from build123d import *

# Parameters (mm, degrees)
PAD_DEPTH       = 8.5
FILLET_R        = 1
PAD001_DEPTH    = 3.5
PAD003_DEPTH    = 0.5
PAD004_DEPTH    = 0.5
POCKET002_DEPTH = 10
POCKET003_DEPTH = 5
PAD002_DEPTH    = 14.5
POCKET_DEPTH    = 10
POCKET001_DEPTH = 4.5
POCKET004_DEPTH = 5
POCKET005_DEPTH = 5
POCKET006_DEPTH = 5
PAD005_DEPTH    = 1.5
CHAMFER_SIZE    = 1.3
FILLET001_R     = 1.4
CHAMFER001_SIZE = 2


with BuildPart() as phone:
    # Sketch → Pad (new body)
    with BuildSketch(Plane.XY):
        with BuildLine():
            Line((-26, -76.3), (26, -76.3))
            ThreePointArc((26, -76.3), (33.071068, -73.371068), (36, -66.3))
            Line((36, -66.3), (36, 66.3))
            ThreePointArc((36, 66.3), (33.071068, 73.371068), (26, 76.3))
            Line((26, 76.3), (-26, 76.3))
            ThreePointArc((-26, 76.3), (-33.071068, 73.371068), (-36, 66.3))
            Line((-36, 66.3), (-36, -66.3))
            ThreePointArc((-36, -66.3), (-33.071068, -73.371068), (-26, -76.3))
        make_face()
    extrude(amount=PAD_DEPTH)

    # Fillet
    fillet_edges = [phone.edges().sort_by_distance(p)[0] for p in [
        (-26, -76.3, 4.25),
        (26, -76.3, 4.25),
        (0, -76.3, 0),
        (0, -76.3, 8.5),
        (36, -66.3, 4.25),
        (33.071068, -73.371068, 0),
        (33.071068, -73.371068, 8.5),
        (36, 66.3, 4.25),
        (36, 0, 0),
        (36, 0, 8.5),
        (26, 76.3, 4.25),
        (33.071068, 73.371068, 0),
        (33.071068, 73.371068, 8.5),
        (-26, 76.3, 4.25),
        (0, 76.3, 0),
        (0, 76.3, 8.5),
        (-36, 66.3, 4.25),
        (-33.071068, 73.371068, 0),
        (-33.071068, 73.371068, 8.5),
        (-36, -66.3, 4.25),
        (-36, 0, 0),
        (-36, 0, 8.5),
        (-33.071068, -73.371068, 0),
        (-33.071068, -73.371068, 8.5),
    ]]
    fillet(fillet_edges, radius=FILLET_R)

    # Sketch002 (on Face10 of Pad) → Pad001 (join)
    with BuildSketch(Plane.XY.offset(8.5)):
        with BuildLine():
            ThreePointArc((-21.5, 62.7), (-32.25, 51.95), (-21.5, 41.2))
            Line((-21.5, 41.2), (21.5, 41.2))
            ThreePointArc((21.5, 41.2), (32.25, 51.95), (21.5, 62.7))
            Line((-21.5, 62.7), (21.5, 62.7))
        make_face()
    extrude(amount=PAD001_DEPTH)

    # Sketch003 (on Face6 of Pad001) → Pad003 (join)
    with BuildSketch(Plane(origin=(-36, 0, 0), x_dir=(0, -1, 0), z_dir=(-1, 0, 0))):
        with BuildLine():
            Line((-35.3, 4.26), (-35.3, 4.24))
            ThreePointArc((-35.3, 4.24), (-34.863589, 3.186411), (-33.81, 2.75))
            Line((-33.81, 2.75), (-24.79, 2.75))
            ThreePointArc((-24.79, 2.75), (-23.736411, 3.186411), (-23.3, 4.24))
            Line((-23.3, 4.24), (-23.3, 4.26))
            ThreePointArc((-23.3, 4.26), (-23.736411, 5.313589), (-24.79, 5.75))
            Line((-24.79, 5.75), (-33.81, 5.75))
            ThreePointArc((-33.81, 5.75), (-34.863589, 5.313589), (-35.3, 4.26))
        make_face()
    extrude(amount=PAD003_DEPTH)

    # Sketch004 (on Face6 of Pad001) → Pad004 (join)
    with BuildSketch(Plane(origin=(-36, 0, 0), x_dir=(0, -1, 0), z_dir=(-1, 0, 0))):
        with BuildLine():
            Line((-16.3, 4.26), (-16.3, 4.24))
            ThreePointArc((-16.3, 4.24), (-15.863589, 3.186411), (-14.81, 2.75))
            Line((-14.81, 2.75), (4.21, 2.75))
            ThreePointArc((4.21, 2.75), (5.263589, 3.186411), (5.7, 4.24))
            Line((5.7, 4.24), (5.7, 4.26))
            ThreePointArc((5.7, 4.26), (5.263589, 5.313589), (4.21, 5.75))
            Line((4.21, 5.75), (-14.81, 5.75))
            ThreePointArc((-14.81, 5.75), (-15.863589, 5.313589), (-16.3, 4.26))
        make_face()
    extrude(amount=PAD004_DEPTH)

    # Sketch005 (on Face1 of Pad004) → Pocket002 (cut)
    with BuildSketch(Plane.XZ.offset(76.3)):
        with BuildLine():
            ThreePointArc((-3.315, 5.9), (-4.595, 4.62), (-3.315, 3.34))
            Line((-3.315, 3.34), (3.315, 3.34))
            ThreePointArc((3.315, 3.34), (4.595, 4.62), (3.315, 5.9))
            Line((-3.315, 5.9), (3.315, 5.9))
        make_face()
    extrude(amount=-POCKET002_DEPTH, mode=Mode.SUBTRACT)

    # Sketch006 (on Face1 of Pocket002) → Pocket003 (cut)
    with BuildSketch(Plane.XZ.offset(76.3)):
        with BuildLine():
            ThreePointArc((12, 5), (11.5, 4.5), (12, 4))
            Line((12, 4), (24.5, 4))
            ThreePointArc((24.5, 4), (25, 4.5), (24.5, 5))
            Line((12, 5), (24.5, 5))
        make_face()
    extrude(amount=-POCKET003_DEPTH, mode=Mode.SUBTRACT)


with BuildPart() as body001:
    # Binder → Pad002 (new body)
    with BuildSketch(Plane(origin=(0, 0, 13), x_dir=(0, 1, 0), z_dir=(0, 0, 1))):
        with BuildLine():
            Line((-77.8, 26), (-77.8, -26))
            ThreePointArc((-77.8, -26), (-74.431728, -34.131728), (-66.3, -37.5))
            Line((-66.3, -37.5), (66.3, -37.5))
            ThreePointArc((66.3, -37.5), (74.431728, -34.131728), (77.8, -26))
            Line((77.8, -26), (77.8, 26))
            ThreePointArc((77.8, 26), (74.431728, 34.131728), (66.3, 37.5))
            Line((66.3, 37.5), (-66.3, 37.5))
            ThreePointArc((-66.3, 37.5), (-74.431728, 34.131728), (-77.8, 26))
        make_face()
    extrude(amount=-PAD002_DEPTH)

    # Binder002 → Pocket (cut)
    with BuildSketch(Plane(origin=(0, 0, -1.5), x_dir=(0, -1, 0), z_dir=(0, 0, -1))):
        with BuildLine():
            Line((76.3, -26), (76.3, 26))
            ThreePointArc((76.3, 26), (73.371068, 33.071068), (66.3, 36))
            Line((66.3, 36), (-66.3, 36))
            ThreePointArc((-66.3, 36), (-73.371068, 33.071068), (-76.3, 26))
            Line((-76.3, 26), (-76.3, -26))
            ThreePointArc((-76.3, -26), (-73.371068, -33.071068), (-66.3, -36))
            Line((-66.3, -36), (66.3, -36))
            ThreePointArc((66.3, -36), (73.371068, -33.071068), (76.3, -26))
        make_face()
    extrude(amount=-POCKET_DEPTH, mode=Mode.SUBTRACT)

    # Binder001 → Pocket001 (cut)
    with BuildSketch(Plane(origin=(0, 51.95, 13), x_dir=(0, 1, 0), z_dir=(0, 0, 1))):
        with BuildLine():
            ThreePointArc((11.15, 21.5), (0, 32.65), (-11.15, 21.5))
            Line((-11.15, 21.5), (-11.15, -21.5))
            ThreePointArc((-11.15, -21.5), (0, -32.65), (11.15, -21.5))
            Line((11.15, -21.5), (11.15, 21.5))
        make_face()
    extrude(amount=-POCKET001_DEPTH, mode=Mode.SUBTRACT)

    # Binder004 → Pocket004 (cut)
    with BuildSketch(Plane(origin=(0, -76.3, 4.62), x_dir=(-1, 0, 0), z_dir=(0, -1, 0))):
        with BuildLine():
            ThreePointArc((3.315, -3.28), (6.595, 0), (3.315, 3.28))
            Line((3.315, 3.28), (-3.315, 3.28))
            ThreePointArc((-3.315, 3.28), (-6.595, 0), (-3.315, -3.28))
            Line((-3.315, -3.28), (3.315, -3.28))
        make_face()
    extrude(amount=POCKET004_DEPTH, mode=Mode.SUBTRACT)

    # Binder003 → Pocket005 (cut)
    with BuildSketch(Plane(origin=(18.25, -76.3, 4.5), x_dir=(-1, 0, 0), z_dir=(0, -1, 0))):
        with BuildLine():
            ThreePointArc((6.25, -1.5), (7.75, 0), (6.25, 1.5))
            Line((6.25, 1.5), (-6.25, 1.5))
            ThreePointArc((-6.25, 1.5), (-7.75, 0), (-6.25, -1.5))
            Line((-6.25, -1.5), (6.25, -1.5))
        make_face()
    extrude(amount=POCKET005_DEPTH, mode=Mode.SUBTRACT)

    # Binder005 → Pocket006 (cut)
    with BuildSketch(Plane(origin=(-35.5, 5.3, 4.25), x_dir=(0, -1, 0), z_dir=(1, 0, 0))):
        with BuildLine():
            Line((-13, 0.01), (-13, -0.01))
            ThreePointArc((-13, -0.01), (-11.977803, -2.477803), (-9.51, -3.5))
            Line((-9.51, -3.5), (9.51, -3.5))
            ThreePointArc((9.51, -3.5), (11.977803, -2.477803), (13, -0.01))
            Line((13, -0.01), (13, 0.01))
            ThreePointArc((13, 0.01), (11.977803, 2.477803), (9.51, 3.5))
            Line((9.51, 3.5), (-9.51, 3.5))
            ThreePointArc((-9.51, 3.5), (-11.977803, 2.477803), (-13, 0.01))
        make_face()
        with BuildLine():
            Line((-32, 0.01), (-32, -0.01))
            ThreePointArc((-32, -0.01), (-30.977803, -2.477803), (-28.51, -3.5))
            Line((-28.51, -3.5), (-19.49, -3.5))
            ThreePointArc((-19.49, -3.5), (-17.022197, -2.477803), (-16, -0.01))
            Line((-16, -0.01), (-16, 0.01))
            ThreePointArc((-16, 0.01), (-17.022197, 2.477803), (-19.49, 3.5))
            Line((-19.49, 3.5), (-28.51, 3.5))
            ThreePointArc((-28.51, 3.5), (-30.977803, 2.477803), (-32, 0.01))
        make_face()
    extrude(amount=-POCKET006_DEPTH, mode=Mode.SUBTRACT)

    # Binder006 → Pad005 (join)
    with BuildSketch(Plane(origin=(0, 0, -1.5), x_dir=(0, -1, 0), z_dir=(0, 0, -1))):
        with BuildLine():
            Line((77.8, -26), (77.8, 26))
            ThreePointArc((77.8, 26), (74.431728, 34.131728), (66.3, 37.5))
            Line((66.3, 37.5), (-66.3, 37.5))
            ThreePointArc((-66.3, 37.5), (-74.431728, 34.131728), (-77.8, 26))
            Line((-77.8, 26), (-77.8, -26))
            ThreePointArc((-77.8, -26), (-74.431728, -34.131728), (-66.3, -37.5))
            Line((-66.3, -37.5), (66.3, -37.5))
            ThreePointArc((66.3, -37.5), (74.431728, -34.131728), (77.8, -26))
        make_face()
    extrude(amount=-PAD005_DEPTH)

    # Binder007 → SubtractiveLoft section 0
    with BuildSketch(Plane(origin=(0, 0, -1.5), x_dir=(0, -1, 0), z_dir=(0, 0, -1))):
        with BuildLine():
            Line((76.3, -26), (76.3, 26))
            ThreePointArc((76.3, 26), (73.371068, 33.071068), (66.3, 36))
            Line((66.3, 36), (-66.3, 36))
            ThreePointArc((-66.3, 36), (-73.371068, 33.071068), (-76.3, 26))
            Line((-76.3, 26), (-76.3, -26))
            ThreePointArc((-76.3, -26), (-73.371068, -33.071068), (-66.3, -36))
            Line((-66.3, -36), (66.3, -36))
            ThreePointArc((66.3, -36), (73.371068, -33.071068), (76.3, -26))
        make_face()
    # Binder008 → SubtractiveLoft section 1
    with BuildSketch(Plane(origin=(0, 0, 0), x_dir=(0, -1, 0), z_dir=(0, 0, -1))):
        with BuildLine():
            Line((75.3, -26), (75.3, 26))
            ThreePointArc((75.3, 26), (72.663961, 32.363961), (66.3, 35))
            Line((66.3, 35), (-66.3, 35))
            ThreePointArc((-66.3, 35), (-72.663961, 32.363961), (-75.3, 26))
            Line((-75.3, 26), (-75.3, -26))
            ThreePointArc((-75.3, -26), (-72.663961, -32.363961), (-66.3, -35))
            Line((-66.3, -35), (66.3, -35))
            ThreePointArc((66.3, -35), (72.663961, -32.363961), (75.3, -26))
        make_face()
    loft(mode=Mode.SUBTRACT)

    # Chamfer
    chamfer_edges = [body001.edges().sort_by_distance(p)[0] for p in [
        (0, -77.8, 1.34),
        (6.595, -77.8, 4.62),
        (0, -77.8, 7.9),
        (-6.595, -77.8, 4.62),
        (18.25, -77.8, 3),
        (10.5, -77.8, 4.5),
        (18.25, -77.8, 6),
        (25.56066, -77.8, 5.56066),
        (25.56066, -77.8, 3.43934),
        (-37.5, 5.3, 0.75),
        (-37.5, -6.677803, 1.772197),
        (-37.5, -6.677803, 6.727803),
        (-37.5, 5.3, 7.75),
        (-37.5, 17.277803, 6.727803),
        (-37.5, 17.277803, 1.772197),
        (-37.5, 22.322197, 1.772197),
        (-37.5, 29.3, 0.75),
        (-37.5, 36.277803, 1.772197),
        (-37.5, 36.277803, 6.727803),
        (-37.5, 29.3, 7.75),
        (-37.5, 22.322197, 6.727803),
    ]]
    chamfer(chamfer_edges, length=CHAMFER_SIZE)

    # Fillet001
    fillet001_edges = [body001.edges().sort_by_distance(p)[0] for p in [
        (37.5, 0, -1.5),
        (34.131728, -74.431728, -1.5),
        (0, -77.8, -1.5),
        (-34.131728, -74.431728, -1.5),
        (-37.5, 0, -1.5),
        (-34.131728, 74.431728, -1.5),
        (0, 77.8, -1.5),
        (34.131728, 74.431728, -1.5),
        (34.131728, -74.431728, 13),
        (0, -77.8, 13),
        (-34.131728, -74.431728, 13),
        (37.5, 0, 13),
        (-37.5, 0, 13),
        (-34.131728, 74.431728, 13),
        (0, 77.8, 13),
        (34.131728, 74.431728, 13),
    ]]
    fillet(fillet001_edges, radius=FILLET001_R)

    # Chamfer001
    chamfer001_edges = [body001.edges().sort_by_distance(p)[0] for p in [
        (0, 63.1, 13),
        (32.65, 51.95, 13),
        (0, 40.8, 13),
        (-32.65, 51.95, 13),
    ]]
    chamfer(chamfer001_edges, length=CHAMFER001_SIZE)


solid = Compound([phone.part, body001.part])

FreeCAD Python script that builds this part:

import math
import FreeCAD as App
import Part
import Sketcher


def edges_at(feature, points):
    """Names of the edges that pass closest to the given points."""
    edges = feature.Shape.Edges
    near = lambda p: min(range(len(edges)), key=lambda i: edges[i].distToShape(Part.Vertex(*p))[0])
    return sorted({f"Edge{near(p) + 1}" for p in points})

doc = App.newDocument("Part")
params = doc.addObject("Spreadsheet::Sheet", "Params")
for row, (alias, value) in enumerate([
    ("sketch1_radius", "9.999999 mm"),
    ("sketch1_width", "52 mm"),
    ("sketch1_height", "132.6 mm"),
    ("pad1_length", "8.5 mm"),
    ("fillet_radius", "1 mm"),
    ("sketch2_width", "43 mm"),
    ("sketch2_radius", "10.75 mm"),
    ("pad2_length", "3.5 mm"),
    ("sketch3_radius", "1.49 mm"),
    ("sketch3_width", "9.02 mm"),
    ("pad3_length", "0.5 mm"),
    ("sketch4_radius", "1.49 mm"),
    ("sketch4_width", "19.02 mm"),
    ("pad4_length", "0.5 mm"),
    ("sketch5_radius", "1.28 mm"),
    ("sketch5_width", "6.63 mm"),
    ("pocket1_length", "10 mm"),
    ("sketch6_radius", "0.5 mm"),
    ("sketch6_width", "12.5 mm"),
    ("pocket2_length", "5 mm"),
    ("sketch7_radius", "11.5 mm"),
    ("sketch7_width", "52 mm"),
    ("sketch7_height", "132.6 mm"),
    ("pad5_length", "14.5 mm"),
    ("sketch8_radius", "9.999999 mm"),
    ("sketch8_width", "52 mm"),
    ("sketch8_height", "132.6 mm"),
    ("pocket3_length", "10 mm"),
    ("sketch9_width", "43 mm"),
    ("sketch9_radius", "11.15 mm"),
    ("pocket4_length", "4.5 mm"),
    ("sketch10_radius", "3.28 mm"),
    ("sketch10_width", "6.63 mm"),
    ("pocket5_length", "5 mm"),
    ("sketch11_radius", "1.5 mm"),
    ("sketch11_width", "12.5 mm"),
    ("pocket6_length", "5 mm"),
    ("sketch12_radius", "3.489999 mm"),
    ("pocket7_length", "5 mm"),
    ("sketch13_radius", "11.5 mm"),
    ("sketch13_width", "52 mm"),
    ("sketch13_height", "132.6 mm"),
    ("pad6_length", "1.5 mm"),
    ("sketch14_radius", "9.999999 mm"),
    ("sketch14_width", "52 mm"),
    ("sketch14_height", "132.6 mm"),
    ("sketch15_radius", "9 mm"),
    ("sketch15_width", "52 mm"),
    ("sketch15_height", "132.6 mm"),
    ("chamfer_size", "1.3 mm"),
    ("fillet2_radius", "1.4 mm"),
    ("chamfer2_size", "2 mm"),
], start=1):
    params.set(f"A{row}", alias)
    params.set(f"B{row}", "=" + value)
    params.setAlias(f"B{row}", alias)

body = doc.addObject("PartDesign::Body", "Body")

# Sketch on XY plane
sketch1 = body.newObject("Sketcher::SketchObject", "Sketch")
sketch1.AttachmentSupport = (doc.getObject("XY_Plane"), [""])
sketch1.MapMode = "FlatFace"
sketch1.addGeometry(Part.LineSegment(App.Vector(-26, -76, 0), App.Vector(26, -76, 0)), False)
sketch1.addGeometry(Part.ArcOfCircle(Part.Circle(App.Vector(26, -66, 0), App.Vector(0, 0, 1), 10), math.radians(-90), math.radians(0)), False)
sketch1.addGeometry(Part.LineSegment(App.Vector(36, -66, 0), App.Vector(36, 66, 0)), False)
sketch1.addGeometry(Part.ArcOfCircle(Part.Circle(App.Vector(26, 66, 0), App.Vector(0, 0, 1), 10), math.radians(0), math.radians(90)), False)
sketch1.addGeometry(Part.LineSegment(App.Vector(26, 76, 0), App.Vector(-26, 76, 0)), False)
sketch1.addGeometry(Part.ArcOfCircle(Part.Circle(App.Vector(-26, 66, 0), App.Vector(0, 0, 1), 10), math.radians(90), math.radians(180)), False)
sketch1.addGeometry(Part.LineSegment(App.Vector(-36, 66, 0), App.Vector(-36, -66, 0)), False)
sketch1.addGeometry(Part.ArcOfCircle(Part.Circle(App.Vector(-26, -66, 0), App.Vector(0, 0, 1), 10), math.radians(180), math.radians(270)), False)
sketch1.addConstraint(Sketcher.Constraint("Tangent", 0, 2, 1, 1))
sketch1.addConstraint(Sketcher.Constraint("Tangent", 1, 2, 2, 1))
sketch1.addConstraint(Sketcher.Constraint("Tangent", 2, 2, 3, 1))
sketch1.addConstraint(Sketcher.Constraint("Tangent", 3, 2, 4, 1))
sketch1.addConstraint(Sketcher.Constraint("Tangent", 4, 2, 5, 1))
sketch1.addConstraint(Sketcher.Constraint("Tangent", 5, 2, 6, 1))
sketch1.addConstraint(Sketcher.Constraint("Tangent", 6, 2, 7, 1))
sketch1.addConstraint(Sketcher.Constraint("Tangent", 7, 2, 0, 1))
sketch1.addConstraint(Sketcher.Constraint("Horizontal", 0))
sketch1.addConstraint(Sketcher.Constraint("Vertical", 2))
sketch1.addConstraint(Sketcher.Constraint("Horizontal", 4))
sketch1.addConstraint(Sketcher.Constraint("Vertical", 6))
sketch1.addConstraint(Sketcher.Constraint("Equal", 1, 3))
sketch1.addConstraint(Sketcher.Constraint("Equal", 3, 5))
sketch1.addConstraint(Sketcher.Constraint("Equal", 5, 7))
sketch1.addConstraint(Sketcher.Constraint("Symmetric", 1, 3, 5, 3, -1, 1))
sketch1.addConstraint(Sketcher.Constraint("Radius", 1, 9.999999))
sketch1.addConstraint(Sketcher.Constraint("DistanceX", 0, 1, 0, 2, 52.0))
sketch1.addConstraint(Sketcher.Constraint("DistanceY", 2, 1, 2, 2, 132.6))
sketch1.setExpression("Constraints[16]", "Params.sketch1_radius")
sketch1.setExpression("Constraints[17]", "Params.sketch1_width")
sketch1.setExpression("Constraints[18]", "Params.sketch1_height")
pad1 = body.newObject("PartDesign::Pad", "Pad")
pad1.Profile = sketch1
pad1.setExpression("Length", "Params.pad1_length")
doc.recompute()

fillet = body.newObject("PartDesign::Fillet", "Fillet")
fillet.Base = (pad1, ["Edge1"])
fillet.UseAllEdges = True
fillet.setExpression("Radius", "Params.fillet_radius")

# Sketch on XY plane
sketch2 = body.newObject("Sketcher::SketchObject", "Sketch001")
sketch2.AttachmentSupport = (doc.getObject("XY_Plane"), [""])
sketch2.MapMode = "FlatFace"
sketch2.AttachmentOffset = App.Placement(App.Vector(0, 0, 8.5), App.Rotation())
sketch2.addGeometry(Part.ArcOfCircle(Part.Circle(App.Vector(-22, 52, 0), App.Vector(0, 0, 1), 11), math.radians(90), math.radians(270)), False)
sketch2.addGeometry(Part.LineSegment(App.Vector(-22, 41, 0), App.Vector(22, 41, 0)), False)
sketch2.addGeometry(Part.ArcOfCircle(Part.Circle(App.Vector(22, 52, 0), App.Vector(0, 0, 1), 11), math.radians(-90), math.radians(90)), False)
sketch2.addGeometry(Part.LineSegment(App.Vector(22, 63, 0), App.Vector(-22, 63, 0)), False)
sketch2.addConstraint(Sketcher.Constraint("Tangent", 0, 2, 1, 1))
sketch2.addConstraint(Sketcher.Constraint("Tangent", 1, 2, 2, 1))
sketch2.addConstraint(Sketcher.Constraint("Tangent", 2, 2, 3, 1))
sketch2.addConstraint(Sketcher.Constraint("Tangent", 3, 2, 0, 1))
sketch2.addConstraint(Sketcher.Constraint("Horizontal", 1))
sketch2.addConstraint(Sketcher.Constraint("Horizontal", 3))
sketch2.addConstraint(Sketcher.Constraint("DistanceX", 1, 1, 1, 2, 43.0))
sketch2.addConstraint(Sketcher.Constraint("Radius", 0, 10.75))
sketch2.addConstraint(Sketcher.Constraint("DistanceX", 0, 3, -1, 1, 21.5))
sketch2.addConstraint(Sketcher.Constraint("DistanceY", -1, 1, 0, 2, 41.2))
sketch2.setExpression("Constraints[6]", "Params.sketch2_width")
sketch2.setExpression("Constraints[7]", "Params.sketch2_radius")
pad2 = body.newObject("PartDesign::Pad", "Pad001")
pad2.Profile = sketch2
pad2.setExpression("Length", "Params.pad2_length")

# Sketch on YZ plane
sketch3 = body.newObject("Sketcher::SketchObject", "Sketch002")
sketch3.AttachmentSupport = (doc.getObject("YZ_Plane"), [""])
sketch3.MapMode = "FlatFace"
sketch3.AttachmentOffset = App.Placement(App.Vector(0, 0, -36), App.Rotation())
sketch3.addGeometry(Part.LineSegment(App.Vector(35.3, 4.26, 0), App.Vector(35.3, 4.24, 0)), False)
sketch3.addGeometry(Part.ArcOfCircle(Part.Circle(App.Vector(33.81, 4.24, 0), App.Vector(0, 0, 1), 1.49), math.radians(-90), math.radians(0)), False)
sketch3.addGeometry(Part.LineSegment(App.Vector(33.81, 2.75, 0), App.Vector(24.79, 2.75, 0)), False)
sketch3.addGeometry(Part.ArcOfCircle(Part.Circle(App.Vector(24.79, 4.24, 0), App.Vector(0, 0, 1), 1.49), math.radians(-180), math.radians(-90)), False)
sketch3.addGeometry(Part.LineSegment(App.Vector(23.3, 4.24, 0), App.Vector(23.3, 4.26, 0)), False)
sketch3.addGeometry(Part.ArcOfCircle(Part.Circle(App.Vector(24.79, 4.26, 0), App.Vector(0, 0, 1), 1.49), math.radians(90), math.radians(180)), False)
sketch3.addGeometry(Part.LineSegment(App.Vector(24.79, 5.75, 0), App.Vector(33.81, 5.75, 0)), False)
sketch3.addGeometry(Part.ArcOfCircle(Part.Circle(App.Vector(33.81, 4.26, 0), App.Vector(0, 0, 1), 1.49), math.radians(0), math.radians(90)), False)
sketch3.addConstraint(Sketcher.Constraint("Tangent", 0, 2, 1, 2))
sketch3.addConstraint(Sketcher.Constraint("Tangent", 1, 1, 2, 1))
sketch3.addConstraint(Sketcher.Constraint("Tangent", 2, 2, 3, 2))
sketch3.addConstraint(Sketcher.Constraint("Tangent", 3, 1, 4, 1))
sketch3.addConstraint(Sketcher.Constraint("Tangent", 4, 2, 5, 2))
sketch3.addConstraint(Sketcher.Constraint("Tangent", 5, 1, 6, 1))
sketch3.addConstraint(Sketcher.Constraint("Tangent", 6, 2, 7, 2))
sketch3.addConstraint(Sketcher.Constraint("Tangent", 7, 1, 0, 1))
sketch3.addConstraint(Sketcher.Constraint("Vertical", 0))
sketch3.addConstraint(Sketcher.Constraint("Horizontal", 2))
sketch3.addConstraint(Sketcher.Constraint("Vertical", 4))
sketch3.addConstraint(Sketcher.Constraint("Horizontal", 6))
sketch3.addConstraint(Sketcher.Constraint("Equal", 1, 3))
sketch3.addConstraint(Sketcher.Constraint("Equal", 3, 5))
sketch3.addConstraint(Sketcher.Constraint("Equal", 5, 7))
sketch3.addConstraint(Sketcher.Constraint("Radius", 1, 1.49))
sketch3.addConstraint(Sketcher.Constraint("DistanceY", 2, 2, 5, 1, 3.0))
sketch3.addConstraint(Sketcher.Constraint("DistanceX", 2, 2, 2, 1, 9.02))
sketch3.addConstraint(Sketcher.Constraint("DistanceX", -1, 1, 0, 2, 35.3))
sketch3.addConstraint(Sketcher.Constraint("DistanceY", -1, 1, 1, 3, 4.24))
sketch3.setExpression("Constraints[15]", "Params.sketch3_radius")
sketch3.setExpression("Constraints[17]", "Params.sketch3_width")
pad3 = body.newObject("PartDesign::Pad", "Pad002")
pad3.Profile = sketch3
pad3.setExpression("Length", "Params.pad3_length")
pad3.Reversed = True

# Sketch on YZ plane
sketch4 = body.newObject("Sketcher::SketchObject", "Sketch003")
sketch4.AttachmentSupport = (doc.getObject("YZ_Plane"), [""])
sketch4.MapMode = "FlatFace"
sketch4.AttachmentOffset = App.Placement(App.Vector(0, 0, -36), App.Rotation())
sketch4.addGeometry(Part.LineSegment(App.Vector(16.3, 4.26, 0), App.Vector(16.3, 4.24, 0)), False)
sketch4.addGeometry(Part.ArcOfCircle(Part.Circle(App.Vector(14.81, 4.24, 0), App.Vector(0, 0, 1), 1.49), math.radians(-90), math.radians(0)), False)
sketch4.addGeometry(Part.LineSegment(App.Vector(14.81, 2.75, 0), App.Vector(-4.21, 2.75, 0)), False)
sketch4.addGeometry(Part.ArcOfCircle(Part.Circle(App.Vector(-4.21, 4.24, 0), App.Vector(0, 0, 1), 1.49), math.radians(-180), math.radians(-90)), False)
sketch4.addGeometry(Part.LineSegment(App.Vector(-5.7, 4.24, 0), App.Vector(-5.7, 4.26, 0)), False)
sketch4.addGeometry(Part.ArcOfCircle(Part.Circle(App.Vector(-4.21, 4.26, 0), App.Vector(0, 0, 1), 1.49), math.radians(90), math.radians(180)), False)
sketch4.addGeometry(Part.LineSegment(App.Vector(-4.21, 5.75, 0), App.Vector(14.81, 5.75, 0)), False)
sketch4.addGeometry(Part.ArcOfCircle(Part.Circle(App.Vector(14.81, 4.26, 0), App.Vector(0, 0, 1), 1.49), math.radians(0), math.radians(90)), False)
sketch4.addConstraint(Sketcher.Constraint("Tangent", 0, 2, 1, 2))
sketch4.addConstraint(Sketcher.Constraint("Tangent", 1, 1, 2, 1))
sketch4.addConstraint(Sketcher.Constraint("Tangent", 2, 2, 3, 2))
sketch4.addConstraint(Sketcher.Constraint("Tangent", 3, 1, 4, 1))
sketch4.addConstraint(Sketcher.Constraint("Tangent", 4, 2, 5, 2))
sketch4.addConstraint(Sketcher.Constraint("Tangent", 5, 1, 6, 1))
sketch4.addConstraint(Sketcher.Constraint("Tangent", 6, 2, 7, 2))
sketch4.addConstraint(Sketcher.Constraint("Tangent", 7, 1, 0, 1))
sketch4.addConstraint(Sketcher.Constraint("Vertical", 0))
sketch4.addConstraint(Sketcher.Constraint("Horizontal", 2))
sketch4.addConstraint(Sketcher.Constraint("Vertical", 4))
sketch4.addConstraint(Sketcher.Constraint("Horizontal", 6))
sketch4.addConstraint(Sketcher.Constraint("Equal", 1, 3))
sketch4.addConstraint(Sketcher.Constraint("Equal", 3, 5))
sketch4.addConstraint(Sketcher.Constraint("Equal", 5, 7))
sketch4.addConstraint(Sketcher.Constraint("Radius", 1, 1.49))
sketch4.addConstraint(Sketcher.Constraint("DistanceY", 2, 2, 5, 1, 3.0))
sketch4.addConstraint(Sketcher.Constraint("DistanceX", 2, 2, 2, 1, 19.02))
sketch4.addConstraint(Sketcher.Constraint("DistanceX", -1, 1, 0, 2, 16.3))
sketch4.addConstraint(Sketcher.Constraint("DistanceY", -1, 1, 1, 3, 4.24))
sketch4.setExpression("Constraints[15]", "Params.sketch4_radius")
sketch4.setExpression("Constraints[17]", "Params.sketch4_width")
pad4 = body.newObject("PartDesign::Pad", "Pad003")
pad4.Profile = sketch4
pad4.setExpression("Length", "Params.pad4_length")
pad4.Reversed = True

# Sketch on XZ plane
sketch5 = body.newObject("Sketcher::SketchObject", "Sketch004")
sketch5.AttachmentSupport = (doc.getObject("XZ_Plane"), [""])
sketch5.MapMode = "FlatFace"
sketch5.AttachmentOffset = App.Placement(App.Vector(0, 0, 76.3), App.Rotation())
sketch5.addGeometry(Part.ArcOfCircle(Part.Circle(App.Vector(-3.3, 4.6, 0), App.Vector(0, 0, 1), 1.3), math.radians(90), math.radians(270)), False)
sketch5.addGeometry(Part.LineSegment(App.Vector(-3.3, 3.3, 0), App.Vector(3.3, 3.3, 0)), False)
sketch5.addGeometry(Part.ArcOfCircle(Part.Circle(App.Vector(3.3, 4.6, 0), App.Vector(0, 0, 1), 1.3), math.radians(-90), math.radians(90)), False)
sketch5.addGeometry(Part.LineSegment(App.Vector(3.3, 5.9, 0), App.Vector(-3.3, 5.9, 0)), False)
sketch5.addConstraint(Sketcher.Constraint("Tangent", 0, 2, 1, 1))
sketch5.addConstraint(Sketcher.Constraint("Tangent", 1, 2, 2, 1))
sketch5.addConstraint(Sketcher.Constraint("Tangent", 2, 2, 3, 1))
sketch5.addConstraint(Sketcher.Constraint("Tangent", 3, 2, 0, 1))
sketch5.addConstraint(Sketcher.Constraint("Horizontal", 1))
sketch5.addConstraint(Sketcher.Constraint("Horizontal", 3))
sketch5.addConstraint(Sketcher.Constraint("Radius", 0, 1.28))
sketch5.addConstraint(Sketcher.Constraint("DistanceX", 1, 1, 1, 2, 6.63))
sketch5.addConstraint(Sketcher.Constraint("DistanceY", -1, 1, 2, 2, 5.9))
sketch5.addConstraint(Sketcher.Constraint("DistanceX", 0, 3, -1, 1, 3.315))
sketch5.setExpression("Constraints[6]", "Params.sketch5_radius")
sketch5.setExpression("Constraints[7]", "Params.sketch5_width")
pocket1 = body.newObject("PartDesign::Pocket", "Pocket")
pocket1.Profile = sketch5
pocket1.setExpression("Length", "Params.pocket1_length")

# Sketch on XZ plane
sketch6 = body.newObject("Sketcher::SketchObject", "Sketch005")
sketch6.AttachmentSupport = (doc.getObject("XZ_Plane"), [""])
sketch6.MapMode = "FlatFace"
sketch6.AttachmentOffset = App.Placement(App.Vector(0, 0, 76.3), App.Rotation())
sketch6.addGeometry(Part.ArcOfCircle(Part.Circle(App.Vector(12, 4.5, 0), App.Vector(0, 0, 1), 0.5), math.radians(90), math.radians(270)), False)
sketch6.addGeometry(Part.LineSegment(App.Vector(12, 4, 0), App.Vector(24.5, 4, 0)), False)
sketch6.addGeometry(Part.ArcOfCircle(Part.Circle(App.Vector(24.5, 4.5, 0), App.Vector(0, 0, 1), 0.5), math.radians(-90), math.radians(90)), False)
sketch6.addGeometry(Part.LineSegment(App.Vector(24.5, 5, 0), App.Vector(12, 5, 0)), False)
sketch6.addConstraint(Sketcher.Constraint("Tangent", 0, 2, 1, 1))
sketch6.addConstraint(Sketcher.Constraint("Tangent", 1, 2, 2, 1))
sketch6.addConstraint(Sketcher.Constraint("Tangent", 2, 2, 3, 1))
sketch6.addConstraint(Sketcher.Constraint("Tangent", 3, 2, 0, 1))
sketch6.addConstraint(Sketcher.Constraint("Horizontal", 1))
sketch6.addConstraint(Sketcher.Constraint("Horizontal", 3))
sketch6.addConstraint(Sketcher.Constraint("Radius", 0, 0.5))
sketch6.addConstraint(Sketcher.Constraint("DistanceX", 1, 1, 1, 2, 12.5))
sketch6.addConstraint(Sketcher.Constraint("DistanceX", -1, 1, 0, 3, 12.0))
sketch6.addConstraint(Sketcher.Constraint("DistanceY", -1, 1, 0, 2, 4.0))
sketch6.setExpression("Constraints[6]", "Params.sketch6_radius")
sketch6.setExpression("Constraints[7]", "Params.sketch6_width")
pocket2 = body.newObject("PartDesign::Pocket", "Pocket001")
pocket2.Profile = sketch6
pocket2.setExpression("Length", "Params.pocket2_length")
body2 = doc.addObject("PartDesign::Body", "Body001")

# Sketch on XY plane
sketch7 = body2.newObject("Sketcher::SketchObject", "Sketch006")
sketch7.AttachmentSupport = (doc.getObject("XY_Plane001"), [""])
sketch7.MapMode = "FlatFace"
sketch7.AttachmentOffset = App.Placement(App.Vector(0, 0, 13), App.Rotation())
sketch7.addGeometry(Part.LineSegment(App.Vector(-26, -78, 0), App.Vector(26, -78, 0)), False)
sketch7.addGeometry(Part.ArcOfCircle(Part.Circle(App.Vector(26, -66, 0), App.Vector(0, 0, 1), 11), math.radians(-90), math.radians(0)), False)
sketch7.addGeometry(Part.LineSegment(App.Vector(38, -66, 0), App.Vector(38, 66, 0)), False)
sketch7.addGeometry(Part.ArcOfCircle(Part.Circle(App.Vector(26, 66, 0), App.Vector(0, 0, 1), 11), math.radians(0), math.radians(90)), False)
sketch7.addGeometry(Part.LineSegment(App.Vector(26, 78, 0), App.Vector(-26, 78, 0)), False)
sketch7.addGeometry(Part.ArcOfCircle(Part.Circle(App.Vector(-26, 66, 0), App.Vector(0, 0, 1), 11), math.radians(90), math.radians(180)), False)
sketch7.addGeometry(Part.LineSegment(App.Vector(-38, 66, 0), App.Vector(-38, -66, 0)), False)
sketch7.addGeometry(Part.ArcOfCircle(Part.Circle(App.Vector(-26, -66, 0), App.Vector(0, 0, 1), 11), math.radians(180), math.radians(270)), False)
sketch7.addConstraint(Sketcher.Constraint("Tangent", 0, 2, 1, 1))
sketch7.addConstraint(Sketcher.Constraint("Tangent", 1, 2, 2, 1))
sketch7.addConstraint(Sketcher.Constraint("Tangent", 2, 2, 3, 1))
sketch7.addConstraint(Sketcher.Constraint("Tangent", 3, 2, 4, 1))
sketch7.addConstraint(Sketcher.Constraint("Tangent", 4, 2, 5, 1))
sketch7.addConstraint(Sketcher.Constraint("Tangent", 5, 2, 6, 1))
sketch7.addConstraint(Sketcher.Constraint("Tangent", 6, 2, 7, 1))
sketch7.addConstraint(Sketcher.Constraint("Tangent", 7, 2, 0, 1))
sketch7.addConstraint(Sketcher.Constraint("Horizontal", 0))
sketch7.addConstraint(Sketcher.Constraint("Vertical", 2))
sketch7.addConstraint(Sketcher.Constraint("Horizontal", 4))
sketch7.addConstraint(Sketcher.Constraint("Vertical", 6))
sketch7.addConstraint(Sketcher.Constraint("Equal", 1, 3))
sketch7.addConstraint(Sketcher.Constraint("Equal", 3, 5))
sketch7.addConstraint(Sketcher.Constraint("Equal", 5, 7))
sketch7.addConstraint(Sketcher.Constraint("Symmetric", 1, 3, 5, 3, -1, 1))
sketch7.addConstraint(Sketcher.Constraint("Radius", 1, 11.5))
sketch7.addConstraint(Sketcher.Constraint("DistanceX", 0, 1, 0, 2, 52.0))
sketch7.addConstraint(Sketcher.Constraint("DistanceY", 2, 1, 2, 2, 132.6))
sketch7.setExpression("Constraints[16]", "Params.sketch7_radius")
sketch7.setExpression("Constraints[17]", "Params.sketch7_width")
sketch7.setExpression("Constraints[18]", "Params.sketch7_height")
pad5 = body2.newObject("PartDesign::Pad", "Pad004")
pad5.Profile = sketch7
pad5.setExpression("Length", "Params.pad5_length")
pad5.Reversed = True

# Sketch on XY plane
sketch8 = body2.newObject("Sketcher::SketchObject", "Sketch007")
sketch8.AttachmentSupport = (doc.getObject("XY_Plane001"), [""])
sketch8.MapMode = "FlatFace"
sketch8.AttachmentOffset = App.Placement(App.Vector(0, 0, -1.5), App.Rotation())
sketch8.addGeometry(Part.LineSegment(App.Vector(26, -76, 0), App.Vector(-26, -76, 0)), False)
sketch8.addGeometry(Part.ArcOfCircle(Part.Circle(App.Vector(-26, -66, 0), App.Vector(0, 0, 1), 10), math.radians(180), math.radians(270)), False)
sketch8.addGeometry(Part.LineSegment(App.Vector(-36, -66, 0), App.Vector(-36, 66, 0)), False)
sketch8.addGeometry(Part.ArcOfCircle(Part.Circle(App.Vector(-26, 66, 0), App.Vector(0, 0, 1), 10), math.radians(90), math.radians(180)), False)
sketch8.addGeometry(Part.LineSegment(App.Vector(-26, 76, 0), App.Vector(26, 76, 0)), False)
sketch8.addGeometry(Part.ArcOfCircle(Part.Circle(App.Vector(26, 66, 0), App.Vector(0, 0, 1), 10), math.radians(0), math.radians(90)), False)
sketch8.addGeometry(Part.LineSegment(App.Vector(36, 66, 0), App.Vector(36, -66, 0)), False)
sketch8.addGeometry(Part.ArcOfCircle(Part.Circle(App.Vector(26, -66, 0), App.Vector(0, 0, 1), 10), math.radians(-90), math.radians(0)), False)
sketch8.addConstraint(Sketcher.Constraint("Tangent", 0, 2, 1, 2))
sketch8.addConstraint(Sketcher.Constraint("Tangent", 1, 1, 2, 1))
sketch8.addConstraint(Sketcher.Constraint("Tangent", 2, 2, 3, 2))
sketch8.addConstraint(Sketcher.Constraint("Tangent", 3, 1, 4, 1))
sketch8.addConstraint(Sketcher.Constraint("Tangent", 4, 2, 5, 2))
sketch8.addConstraint(Sketcher.Constraint("Tangent", 5, 1, 6, 1))
sketch8.addConstraint(Sketcher.Constraint("Tangent", 6, 2, 7, 2))
sketch8.addConstraint(Sketcher.Constraint("Tangent", 7, 1, 0, 1))
sketch8.addConstraint(Sketcher.Constraint("Horizontal", 0))
sketch8.addConstraint(Sketcher.Constraint("Vertical", 2))
sketch8.addConstraint(Sketcher.Constraint("Horizontal", 4))
sketch8.addConstraint(Sketcher.Constraint("Vertical", 6))
sketch8.addConstraint(Sketcher.Constraint("Equal", 1, 3))
sketch8.addConstraint(Sketcher.Constraint("Equal", 3, 5))
sketch8.addConstraint(Sketcher.Constraint("Equal", 5, 7))
sketch8.addConstraint(Sketcher.Constraint("Symmetric", 1, 3, 5, 3, -1, 1))
sketch8.addConstraint(Sketcher.Constraint("Radius", 1, 9.999999))
sketch8.addConstraint(Sketcher.Constraint("DistanceX", 0, 2, 0, 1, 52.0))
sketch8.addConstraint(Sketcher.Constraint("DistanceY", 2, 1, 2, 2, 132.6))
sketch8.setExpression("Constraints[16]", "Params.sketch8_radius")
sketch8.setExpression("Constraints[17]", "Params.sketch8_width")
sketch8.setExpression("Constraints[18]", "Params.sketch8_height")
pocket3 = body2.newObject("PartDesign::Pocket", "Pocket002")
pocket3.Profile = sketch8
pocket3.setExpression("Length", "Params.pocket3_length")
pocket3.Reversed = True

# Sketch on XY plane
sketch9 = body2.newObject("Sketcher::SketchObject", "Sketch008")
sketch9.AttachmentSupport = (doc.getObject("XY_Plane001"), [""])
sketch9.MapMode = "FlatFace"
sketch9.AttachmentOffset = App.Placement(App.Vector(0, 0, 13), App.Rotation())
sketch9.addGeometry(Part.ArcOfCircle(Part.Circle(App.Vector(-22, 52, 0), App.Vector(0, 0, 1), 11), math.radians(90), math.radians(270)), False)
sketch9.addGeometry(Part.LineSegment(App.Vector(-22, 41, 0), App.Vector(22, 41, 0)), False)
sketch9.addGeometry(Part.ArcOfCircle(Part.Circle(App.Vector(22, 52, 0), App.Vector(0, 0, 1), 11), math.radians(-90), math.radians(90)), False)
sketch9.addGeometry(Part.LineSegment(App.Vector(22, 63, 0), App.Vector(-22, 63, 0)), False)
sketch9.addConstraint(Sketcher.Constraint("Tangent", 0, 2, 1, 1))
sketch9.addConstraint(Sketcher.Constraint("Tangent", 1, 2, 2, 1))
sketch9.addConstraint(Sketcher.Constraint("Tangent", 2, 2, 3, 1))
sketch9.addConstraint(Sketcher.Constraint("Tangent", 3, 2, 0, 1))
sketch9.addConstraint(Sketcher.Constraint("Horizontal", 1))
sketch9.addConstraint(Sketcher.Constraint("Horizontal", 3))
sketch9.addConstraint(Sketcher.Constraint("DistanceX", 1, 1, 1, 2, 43.0))
sketch9.addConstraint(Sketcher.Constraint("Radius", 0, 11.15))
sketch9.addConstraint(Sketcher.Constraint("DistanceX", 0, 3, -1, 1, 21.5))
sketch9.addConstraint(Sketcher.Constraint("DistanceY", -1, 1, 0, 2, 40.8))
sketch9.setExpression("Constraints[6]", "Params.sketch9_width")
sketch9.setExpression("Constraints[7]", "Params.sketch9_radius")
pocket4 = body2.newObject("PartDesign::Pocket", "Pocket003")
pocket4.Profile = sketch9
pocket4.setExpression("Length", "Params.pocket4_length")

# Sketch on XZ plane
sketch10 = body2.newObject("Sketcher::SketchObject", "Sketch009")
sketch10.AttachmentSupport = (doc.getObject("XZ_Plane001"), [""])
sketch10.MapMode = "FlatFace"
sketch10.AttachmentOffset = App.Placement(App.Vector(0, 0, 76.3), App.Rotation())
sketch10.addGeometry(Part.ArcOfCircle(Part.Circle(App.Vector(-3.3, 4.6, 0), App.Vector(0, 0, 1), 3.3), math.radians(90), math.radians(270)), False)
sketch10.addGeometry(Part.LineSegment(App.Vector(-3.3, 1.3, 0), App.Vector(3.3, 1.3, 0)), False)
sketch10.addGeometry(Part.ArcOfCircle(Part.Circle(App.Vector(3.3, 4.6, 0), App.Vector(0, 0, 1), 3.3), math.radians(-90), math.radians(90)), False)
sketch10.addGeometry(Part.LineSegment(App.Vector(3.3, 7.9, 0), App.Vector(-3.3, 7.9, 0)), False)
sketch10.addConstraint(Sketcher.Constraint("Tangent", 0, 2, 1, 1))
sketch10.addConstraint(Sketcher.Constraint("Tangent", 1, 2, 2, 1))
sketch10.addConstraint(Sketcher.Constraint("Tangent", 2, 2, 3, 1))
sketch10.addConstraint(Sketcher.Constraint("Tangent", 3, 2, 0, 1))
sketch10.addConstraint(Sketcher.Constraint("Horizontal", 1))
sketch10.addConstraint(Sketcher.Constraint("Horizontal", 3))
sketch10.addConstraint(Sketcher.Constraint("Radius", 0, 3.28))
sketch10.addConstraint(Sketcher.Constraint("DistanceX", 1, 1, 1, 2, 6.63))
sketch10.addConstraint(Sketcher.Constraint("DistanceY", -1, 1, 2, 2, 7.9))
sketch10.addConstraint(Sketcher.Constraint("DistanceX", 0, 3, -1, 1, 3.315))
sketch10.setExpression("Constraints[6]", "Params.sketch10_radius")
sketch10.setExpression("Constraints[7]", "Params.sketch10_width")
pocket5 = body2.newObject("PartDesign::Pocket", "Pocket004")
pocket5.Profile = sketch10
pocket5.setExpression("Length", "Params.pocket5_length")
pocket5.Reversed = True

# Sketch on XZ plane
sketch11 = body2.newObject("Sketcher::SketchObject", "Sketch010")
sketch11.AttachmentSupport = (doc.getObject("XZ_Plane001"), [""])
sketch11.MapMode = "FlatFace"
sketch11.AttachmentOffset = App.Placement(App.Vector(0, 0, 76.3), App.Rotation())
sketch11.addGeometry(Part.ArcOfCircle(Part.Circle(App.Vector(12, 4.5, 0), App.Vector(0, 0, 1), 1.5), math.radians(90), math.radians(270)), False)
sketch11.addGeometry(Part.LineSegment(App.Vector(12, 3, 0), App.Vector(24.5, 3, 0)), False)
sketch11.addGeometry(Part.ArcOfCircle(Part.Circle(App.Vector(24.5, 4.5, 0), App.Vector(0, 0, 1), 1.5), math.radians(-90), math.radians(90)), False)
sketch11.addGeometry(Part.LineSegment(App.Vector(24.5, 6, 0), App.Vector(12, 6, 0)), False)
sketch11.addConstraint(Sketcher.Constraint("Tangent", 0, 2, 1, 1))
sketch11.addConstraint(Sketcher.Constraint("Tangent", 1, 2, 2, 1))
sketch11.addConstraint(Sketcher.Constraint("Tangent", 2, 2, 3, 1))
sketch11.addConstraint(Sketcher.Constraint("Tangent", 3, 2, 0, 1))
sketch11.addConstraint(Sketcher.Constraint("Horizontal", 1))
sketch11.addConstraint(Sketcher.Constraint("Horizontal", 3))
sketch11.addConstraint(Sketcher.Constraint("Radius", 0, 1.5))
sketch11.addConstraint(Sketcher.Constraint("DistanceX", 1, 1, 1, 2, 12.5))
sketch11.addConstraint(Sketcher.Constraint("DistanceX", -1, 1, 0, 3, 12.0))
sketch11.addConstraint(Sketcher.Constraint("DistanceY", -1, 1, 0, 2, 3.0))
sketch11.setExpression("Constraints[6]", "Params.sketch11_radius")
sketch11.setExpression("Constraints[7]", "Params.sketch11_width")
pocket6 = body2.newObject("PartDesign::Pocket", "Pocket005")
pocket6.Profile = sketch11
pocket6.setExpression("Length", "Params.pocket6_length")
pocket6.Reversed = True

# Sketch on YZ plane
sketch12 = body2.newObject("Sketcher::SketchObject", "Sketch011")
sketch12.AttachmentSupport = (doc.getObject("YZ_Plane001"), [""])
sketch12.MapMode = "FlatFace"
sketch12.AttachmentOffset = App.Placement(App.Vector(0, 0, -35.5), App.Rotation())
sketch12.addGeometry(Part.LineSegment(App.Vector(18.3, 4.24, 0), App.Vector(18.3, 4.26, 0)), False)
sketch12.addGeometry(Part.ArcOfCircle(Part.Circle(App.Vector(14.81, 4.26, 0), App.Vector(0, 0, 1), 3.49), math.radians(0), math.radians(90)), False)
sketch12.addGeometry(Part.LineSegment(App.Vector(14.81, 7.75, 0), App.Vector(-4.21, 7.75, 0)), False)
sketch12.addGeometry(Part.ArcOfCircle(Part.Circle(App.Vector(-4.21, 4.26, 0), App.Vector(0, 0, 1), 3.49), math.radians(90), math.radians(180)), False)
sketch12.addGeometry(Part.LineSegment(App.Vector(-7.7, 4.26, 0), App.Vector(-7.7, 4.24, 0)), False)
sketch12.addGeometry(Part.ArcOfCircle(Part.Circle(App.Vector(-4.21, 4.24, 0), App.Vector(0, 0, 1), 3.49), math.radians(180), math.radians(270)), False)
sketch12.addGeometry(Part.LineSegment(App.Vector(-4.21, 0.75, 0), App.Vector(14.81, 0.75, 0)), False)
sketch12.addGeometry(Part.ArcOfCircle(Part.Circle(App.Vector(14.81, 4.24, 0), App.Vector(0, 0, 1), 3.49), math.radians(-90), math.radians(0)), False)
sketch12.addGeometry(Part.LineSegment(App.Vector(37.3, 4.24, 0), App.Vector(37.3, 4.26, 0)), False)
sketch12.addGeometry(Part.ArcOfCircle(Part.Circle(App.Vector(33.81, 4.26, 0), App.Vector(0, 0, 1), 3.49), math.radians(0), math.radians(90)), False)
sketch12.addGeometry(Part.LineSegment(App.Vector(33.81, 7.75, 0), App.Vector(24.79, 7.75, 0)), False)
sketch12.addGeometry(Part.ArcOfCircle(Part.Circle(App.Vector(24.79, 4.26, 0), App.Vector(0, 0, 1), 3.49), math.radians(90), math.radians(180)), False)
sketch12.addGeometry(Part.LineSegment(App.Vector(21.3, 4.26, 0), App.Vector(21.3, 4.24, 0)), False)
sketch12.addGeometry(Part.ArcOfCircle(Part.Circle(App.Vector(24.79, 4.24, 0), App.Vector(0, 0, 1), 3.49), math.radians(180), math.radians(270)), False)
sketch12.addGeometry(Part.LineSegment(App.Vector(24.79, 0.75, 0), App.Vector(33.81, 0.75, 0)), False)
sketch12.addGeometry(Part.ArcOfCircle(Part.Circle(App.Vector(33.81, 4.24, 0), App.Vector(0, 0, 1), 3.49), math.radians(-90), math.radians(0)), False)
sketch12.addConstraint(Sketcher.Constraint("Tangent", 0, 2, 1, 1))
sketch12.addConstraint(Sketcher.Constraint("Tangent", 1, 2, 2, 1))
sketch12.addConstraint(Sketcher.Constraint("Tangent", 2, 2, 3, 1))
sketch12.addConstraint(Sketcher.Constraint("Tangent", 3, 2, 4, 1))
sketch12.addConstraint(Sketcher.Constraint("Tangent", 4, 2, 5, 1))
sketch12.addConstraint(Sketcher.Constraint("Tangent", 5, 2, 6, 1))
sketch12.addConstraint(Sketcher.Constraint("Tangent", 6, 2, 7, 1))
sketch12.addConstraint(Sketcher.Constraint("Tangent", 7, 2, 0, 1))
sketch12.addConstraint(Sketcher.Constraint("Tangent", 8, 2, 9, 1))
sketch12.addConstraint(Sketcher.Constraint("Tangent", 9, 2, 10, 1))
sketch12.addConstraint(Sketcher.Constraint("Tangent", 10, 2, 11, 1))
sketch12.addConstraint(Sketcher.Constraint("Tangent", 11, 2, 12, 1))
sketch12.addConstraint(Sketcher.Constraint("Tangent", 12, 2, 13, 1))
sketch12.addConstraint(Sketcher.Constraint("Tangent", 13, 2, 14, 1))
sketch12.addConstraint(Sketcher.Constraint("Tangent", 14, 2, 15, 1))
sketch12.addConstraint(Sketcher.Constraint("Tangent", 15, 2, 8, 1))
sketch12.addConstraint(Sketcher.Constraint("Vertical", 0))
sketch12.addConstraint(Sketcher.Constraint("Horizontal", 2))
sketch12.addConstraint(Sketcher.Constraint("Vertical", 4))
sketch12.addConstraint(Sketcher.Constraint("Horizontal", 6))
sketch12.addConstraint(Sketcher.Constraint("Vertical", 8))
sketch12.addConstraint(Sketcher.Constraint("Horizontal", 10))
sketch12.addConstraint(Sketcher.Constraint("Vertical", 12))
sketch12.addConstraint(Sketcher.Constraint("Horizontal", 14))
sketch12.addConstraint(Sketcher.Constraint("Equal", 1, 3))
sketch12.addConstraint(Sketcher.Constraint("Equal", 3, 5))
sketch12.addConstraint(Sketcher.Constraint("Equal", 5, 7))
sketch12.addConstraint(Sketcher.Constraint("Equal", 7, 9))
sketch12.addConstraint(Sketcher.Constraint("Equal", 9, 11))
sketch12.addConstraint(Sketcher.Constraint("Equal", 11, 13))
sketch12.addConstraint(Sketcher.Constraint("Equal", 13, 15))
sketch12.addConstraint(Sketcher.Constraint("Horizontal", 3, 3, 9, 3))
sketch12.addConstraint(Sketcher.Constraint("Horizontal", 7, 3, 13, 3))
sketch12.addConstraint(Sketcher.Constraint("Radius", 1, 3.489999))
sketch12.addConstraint(Sketcher.Constraint("DistanceX", 1, 3, 9, 3, 19.0))
sketch12.addConstraint(Sketcher.Constraint("DistanceX", 3, 3, 11, 3, 29.0))
sketch12.addConstraint(Sketcher.Constraint("DistanceY", 5, 2, 2, 2, 7.0))
sketch12.addConstraint(Sketcher.Constraint("DistanceX", 0, 2, 11, 2, 3.0))
sketch12.addConstraint(Sketcher.Constraint("DistanceX", -1, 1, 0, 2, 18.3))
sketch12.addConstraint(Sketcher.Constraint("DistanceY", -1, 1, 1, 3, 4.260001))
sketch12.setExpression("Constraints[33]", "Params.sketch12_radius")
pocket7 = body2.newObject("PartDesign::Pocket", "Pocket006")
pocket7.Profile = sketch12
pocket7.setExpression("Length", "Params.pocket7_length")

# Sketch on XY plane
sketch13 = body2.newObject("Sketcher::SketchObject", "Sketch012")
sketch13.AttachmentSupport = (doc.getObject("XY_Plane001"), [""])
sketch13.MapMode = "FlatFace"
sketch13.AttachmentOffset = App.Placement(App.Vector(0, 0, -1.5), App.Rotation())
sketch13.addGeometry(Part.LineSegment(App.Vector(26, -78, 0), App.Vector(-26, -78, 0)), False)
sketch13.addGeometry(Part.ArcOfCircle(Part.Circle(App.Vector(-26, -66, 0), App.Vector(0, 0, 1), 11), math.radians(180), math.radians(270)), False)
sketch13.addGeometry(Part.LineSegment(App.Vector(-38, -66, 0), App.Vector(-38, 66, 0)), False)
sketch13.addGeometry(Part.ArcOfCircle(Part.Circle(App.Vector(-26, 66, 0), App.Vector(0, 0, 1), 11), math.radians(90), math.radians(180)), False)
sketch13.addGeometry(Part.LineSegment(App.Vector(-26, 78, 0), App.Vector(26, 78, 0)), False)
sketch13.addGeometry(Part.ArcOfCircle(Part.Circle(App.Vector(26, 66, 0), App.Vector(0, 0, 1), 11), math.radians(0), math.radians(90)), False)
sketch13.addGeometry(Part.LineSegment(App.Vector(38, 66, 0), App.Vector(38, -66, 0)), False)
sketch13.addGeometry(Part.ArcOfCircle(Part.Circle(App.Vector(26, -66, 0), App.Vector(0, 0, 1), 11), math.radians(-90), math.radians(0)), False)
sketch13.addConstraint(Sketcher.Constraint("Tangent", 0, 2, 1, 2))
sketch13.addConstraint(Sketcher.Constraint("Tangent", 1, 1, 2, 1))
sketch13.addConstraint(Sketcher.Constraint("Tangent", 2, 2, 3, 2))
sketch13.addConstraint(Sketcher.Constraint("Tangent", 3, 1, 4, 1))
sketch13.addConstraint(Sketcher.Constraint("Tangent", 4, 2, 5, 2))
sketch13.addConstraint(Sketcher.Constraint("Tangent", 5, 1, 6, 1))
sketch13.addConstraint(Sketcher.Constraint("Tangent", 6, 2, 7, 2))
sketch13.addConstraint(Sketcher.Constraint("Tangent", 7, 1, 0, 1))
sketch13.addConstraint(Sketcher.Constraint("Horizontal", 0))
sketch13.addConstraint(Sketcher.Constraint("Vertical", 2))
sketch13.addConstraint(Sketcher.Constraint("Horizontal", 4))
sketch13.addConstraint(Sketcher.Constraint("Vertical", 6))
sketch13.addConstraint(Sketcher.Constraint("Equal", 1, 3))
sketch13.addConstraint(Sketcher.Constraint("Equal", 3, 5))
sketch13.addConstraint(Sketcher.Constraint("Equal", 5, 7))
sketch13.addConstraint(Sketcher.Constraint("Symmetric", 1, 3, 5, 3, -1, 1))
sketch13.addConstraint(Sketcher.Constraint("Radius", 1, 11.5))
sketch13.addConstraint(Sketcher.Constraint("DistanceX", 0, 2, 0, 1, 52.0))
sketch13.addConstraint(Sketcher.Constraint("DistanceY", 2, 1, 2, 2, 132.6))
sketch13.setExpression("Constraints[16]", "Params.sketch13_radius")
sketch13.setExpression("Constraints[17]", "Params.sketch13_width")
sketch13.setExpression("Constraints[18]", "Params.sketch13_height")
pad6 = body2.newObject("PartDesign::Pad", "Pad005")
pad6.Profile = sketch13
pad6.setExpression("Length", "Params.pad6_length")

# Sketch on XY plane
sketch14 = body2.newObject("Sketcher::SketchObject", "Sketch013")
sketch14.AttachmentSupport = (doc.getObject("XY_Plane001"), [""])
sketch14.MapMode = "FlatFace"
sketch14.AttachmentOffset = App.Placement(App.Vector(0, 0, -1.5), App.Rotation())
sketch14.addGeometry(Part.LineSegment(App.Vector(26, -76, 0), App.Vector(-26, -76, 0)), False)
sketch14.addGeometry(Part.ArcOfCircle(Part.Circle(App.Vector(-26, -66, 0), App.Vector(0, 0, 1), 10), math.radians(180), math.radians(270)), False)
sketch14.addGeometry(Part.LineSegment(App.Vector(-36, -66, 0), App.Vector(-36, 66, 0)), False)
sketch14.addGeometry(Part.ArcOfCircle(Part.Circle(App.Vector(-26, 66, 0), App.Vector(0, 0, 1), 10), math.radians(90), math.radians(180)), False)
sketch14.addGeometry(Part.LineSegment(App.Vector(-26, 76, 0), App.Vector(26, 76, 0)), False)
sketch14.addGeometry(Part.ArcOfCircle(Part.Circle(App.Vector(26, 66, 0), App.Vector(0, 0, 1), 10), math.radians(0), math.radians(90)), False)
sketch14.addGeometry(Part.LineSegment(App.Vector(36, 66, 0), App.Vector(36, -66, 0)), False)
sketch14.addGeometry(Part.ArcOfCircle(Part.Circle(App.Vector(26, -66, 0), App.Vector(0, 0, 1), 10), math.radians(-90), math.radians(0)), False)
sketch14.addConstraint(Sketcher.Constraint("Tangent", 0, 2, 1, 2))
sketch14.addConstraint(Sketcher.Constraint("Tangent", 1, 1, 2, 1))
sketch14.addConstraint(Sketcher.Constraint("Tangent", 2, 2, 3, 2))
sketch14.addConstraint(Sketcher.Constraint("Tangent", 3, 1, 4, 1))
sketch14.addConstraint(Sketcher.Constraint("Tangent", 4, 2, 5, 2))
sketch14.addConstraint(Sketcher.Constraint("Tangent", 5, 1, 6, 1))
sketch14.addConstraint(Sketcher.Constraint("Tangent", 6, 2, 7, 2))
sketch14.addConstraint(Sketcher.Constraint("Tangent", 7, 1, 0, 1))
sketch14.addConstraint(Sketcher.Constraint("Horizontal", 0))
sketch14.addConstraint(Sketcher.Constraint("Vertical", 2))
sketch14.addConstraint(Sketcher.Constraint("Horizontal", 4))
sketch14.addConstraint(Sketcher.Constraint("Vertical", 6))
sketch14.addConstraint(Sketcher.Constraint("Equal", 1, 3))
sketch14.addConstraint(Sketcher.Constraint("Equal", 3, 5))
sketch14.addConstraint(Sketcher.Constraint("Equal", 5, 7))
sketch14.addConstraint(Sketcher.Constraint("Symmetric", 1, 3, 5, 3, -1, 1))
sketch14.addConstraint(Sketcher.Constraint("Radius", 1, 9.999999))
sketch14.addConstraint(Sketcher.Constraint("DistanceX", 0, 2, 0, 1, 52.0))
sketch14.addConstraint(Sketcher.Constraint("DistanceY", 2, 1, 2, 2, 132.6))
sketch14.setExpression("Constraints[16]", "Params.sketch14_radius")
sketch14.setExpression("Constraints[17]", "Params.sketch14_width")
sketch14.setExpression("Constraints[18]", "Params.sketch14_height")

# Sketch on XY plane
sketch15 = body2.newObject("Sketcher::SketchObject", "Sketch014")
sketch15.AttachmentSupport = (doc.getObject("XY_Plane001"), [""])
sketch15.MapMode = "FlatFace"
sketch15.addGeometry(Part.LineSegment(App.Vector(26, -75, 0), App.Vector(-26, -75, 0)), False)
sketch15.addGeometry(Part.ArcOfCircle(Part.Circle(App.Vector(-26, -66, 0), App.Vector(0, 0, 1), 9), math.radians(-180), math.radians(-90)), False)
sketch15.addGeometry(Part.LineSegment(App.Vector(-35, -66, 0), App.Vector(-35, 66, 0)), False)
sketch15.addGeometry(Part.ArcOfCircle(Part.Circle(App.Vector(-26, 66, 0), App.Vector(0, 0, 1), 9), math.radians(90), math.radians(180)), False)
sketch15.addGeometry(Part.LineSegment(App.Vector(-26, 75, 0), App.Vector(26, 75, 0)), False)
sketch15.addGeometry(Part.ArcOfCircle(Part.Circle(App.Vector(26, 66, 0), App.Vector(0, 0, 1), 9), math.radians(0), math.radians(90)), False)
sketch15.addGeometry(Part.LineSegment(App.Vector(35, 66, 0), App.Vector(35, -66, 0)), False)
sketch15.addGeometry(Part.ArcOfCircle(Part.Circle(App.Vector(26, -66, 0), App.Vector(0, 0, 1), 9), math.radians(-90), math.radians(0)), False)
sketch15.addConstraint(Sketcher.Constraint("Tangent", 0, 2, 1, 2))
sketch15.addConstraint(Sketcher.Constraint("Tangent", 1, 1, 2, 1))
sketch15.addConstraint(Sketcher.Constraint("Tangent", 2, 2, 3, 2))
sketch15.addConstraint(Sketcher.Constraint("Tangent", 3, 1, 4, 1))
sketch15.addConstraint(Sketcher.Constraint("Tangent", 4, 2, 5, 2))
sketch15.addConstraint(Sketcher.Constraint("Tangent", 5, 1, 6, 1))
sketch15.addConstraint(Sketcher.Constraint("Tangent", 6, 2, 7, 2))
sketch15.addConstraint(Sketcher.Constraint("Tangent", 7, 1, 0, 1))
sketch15.addConstraint(Sketcher.Constraint("Horizontal", 0))
sketch15.addConstraint(Sketcher.Constraint("Vertical", 2))
sketch15.addConstraint(Sketcher.Constraint("Horizontal", 4))
sketch15.addConstraint(Sketcher.Constraint("Vertical", 6))
sketch15.addConstraint(Sketcher.Constraint("Equal", 1, 3))
sketch15.addConstraint(Sketcher.Constraint("Equal", 3, 5))
sketch15.addConstraint(Sketcher.Constraint("Equal", 5, 7))
sketch15.addConstraint(Sketcher.Constraint("Symmetric", 1, 3, 5, 3, -1, 1))
sketch15.addConstraint(Sketcher.Constraint("Radius", 1, 9.0))
sketch15.addConstraint(Sketcher.Constraint("DistanceX", 0, 2, 0, 1, 52.0))
sketch15.addConstraint(Sketcher.Constraint("DistanceY", 2, 1, 2, 2, 132.6))
sketch15.setExpression("Constraints[16]", "Params.sketch15_radius")
sketch15.setExpression("Constraints[17]", "Params.sketch15_width")
sketch15.setExpression("Constraints[18]", "Params.sketch15_height")

subtractiveloft = body2.newObject("PartDesign::SubtractiveLoft", "SubtractiveLoft")
subtractiveloft.Profile = sketch14
subtractiveloft.Sections = [sketch15]
doc.recompute()

chamfer = body2.newObject("PartDesign::Chamfer", "Chamfer")
chamfer.Base = (subtractiveloft, edges_at(subtractiveloft, [
    (0, -77.8, 1.34),
    (6.595, -77.8, 4.62),
    (0, -77.8, 7.9),
    (-6.595, -77.8, 4.62),
    (18.25, -77.8, 3),
    (10.5, -77.8, 4.5),
    (18.25, -77.8, 6),
    (25.561, -77.8, 5.561),
    (25.561, -77.8, 3.439),
    (-37.5, 5.3, 0.75),
    (-37.5, -6.678, 1.772),
    (-37.5, -6.678, 6.728),
    (-37.5, 5.3, 7.75),
    (-37.5, 17.278, 6.728),
    (-37.5, 17.278, 1.772),
    (-37.5, 22.322, 1.772),
    (-37.5, 29.3, 0.75),
    (-37.5, 36.278, 1.772),
    (-37.5, 36.278, 6.728),
    (-37.5, 29.3, 7.75),
    (-37.5, 22.322, 6.728),
]))
chamfer.setExpression("Size", "Params.chamfer_size")
doc.recompute()

fillet2 = body2.newObject("PartDesign::Fillet", "Fillet001")
fillet2.Base = (chamfer, edges_at(chamfer, [
    (37.5, 0, -1.5),
    (34.132, -74.432, -1.5),
    (0, -77.8, -1.5),
    (-34.132, -74.432, -1.5),
    (-37.5, 0, -1.5),
    (-34.132, 74.432, -1.5),
    (0, 77.8, -1.5),
    (34.132, 74.432, -1.5),
    (34.132, -74.432, 13),
    (0, -77.8, 13),
    (-34.132, -74.432, 13),
    (37.5, 0, 13),
    (-37.5, 0, 13),
    (-34.132, 74.432, 13),
    (0, 77.8, 13),
    (34.132, 74.432, 13),
]))
fillet2.setExpression("Radius", "Params.fillet2_radius")
doc.recompute()

chamfer2 = body2.newObject("PartDesign::Chamfer", "Chamfer001")
chamfer2.Base = (fillet2, edges_at(fillet2, [
    (0, 63.1, 13),
    (32.65, 51.95, 13),
    (0, 40.8, 13),
    (-32.65, 51.95, 13),
]))
chamfer2.setExpression("Size", "Params.chamfer2_size")

doc.recompute()
